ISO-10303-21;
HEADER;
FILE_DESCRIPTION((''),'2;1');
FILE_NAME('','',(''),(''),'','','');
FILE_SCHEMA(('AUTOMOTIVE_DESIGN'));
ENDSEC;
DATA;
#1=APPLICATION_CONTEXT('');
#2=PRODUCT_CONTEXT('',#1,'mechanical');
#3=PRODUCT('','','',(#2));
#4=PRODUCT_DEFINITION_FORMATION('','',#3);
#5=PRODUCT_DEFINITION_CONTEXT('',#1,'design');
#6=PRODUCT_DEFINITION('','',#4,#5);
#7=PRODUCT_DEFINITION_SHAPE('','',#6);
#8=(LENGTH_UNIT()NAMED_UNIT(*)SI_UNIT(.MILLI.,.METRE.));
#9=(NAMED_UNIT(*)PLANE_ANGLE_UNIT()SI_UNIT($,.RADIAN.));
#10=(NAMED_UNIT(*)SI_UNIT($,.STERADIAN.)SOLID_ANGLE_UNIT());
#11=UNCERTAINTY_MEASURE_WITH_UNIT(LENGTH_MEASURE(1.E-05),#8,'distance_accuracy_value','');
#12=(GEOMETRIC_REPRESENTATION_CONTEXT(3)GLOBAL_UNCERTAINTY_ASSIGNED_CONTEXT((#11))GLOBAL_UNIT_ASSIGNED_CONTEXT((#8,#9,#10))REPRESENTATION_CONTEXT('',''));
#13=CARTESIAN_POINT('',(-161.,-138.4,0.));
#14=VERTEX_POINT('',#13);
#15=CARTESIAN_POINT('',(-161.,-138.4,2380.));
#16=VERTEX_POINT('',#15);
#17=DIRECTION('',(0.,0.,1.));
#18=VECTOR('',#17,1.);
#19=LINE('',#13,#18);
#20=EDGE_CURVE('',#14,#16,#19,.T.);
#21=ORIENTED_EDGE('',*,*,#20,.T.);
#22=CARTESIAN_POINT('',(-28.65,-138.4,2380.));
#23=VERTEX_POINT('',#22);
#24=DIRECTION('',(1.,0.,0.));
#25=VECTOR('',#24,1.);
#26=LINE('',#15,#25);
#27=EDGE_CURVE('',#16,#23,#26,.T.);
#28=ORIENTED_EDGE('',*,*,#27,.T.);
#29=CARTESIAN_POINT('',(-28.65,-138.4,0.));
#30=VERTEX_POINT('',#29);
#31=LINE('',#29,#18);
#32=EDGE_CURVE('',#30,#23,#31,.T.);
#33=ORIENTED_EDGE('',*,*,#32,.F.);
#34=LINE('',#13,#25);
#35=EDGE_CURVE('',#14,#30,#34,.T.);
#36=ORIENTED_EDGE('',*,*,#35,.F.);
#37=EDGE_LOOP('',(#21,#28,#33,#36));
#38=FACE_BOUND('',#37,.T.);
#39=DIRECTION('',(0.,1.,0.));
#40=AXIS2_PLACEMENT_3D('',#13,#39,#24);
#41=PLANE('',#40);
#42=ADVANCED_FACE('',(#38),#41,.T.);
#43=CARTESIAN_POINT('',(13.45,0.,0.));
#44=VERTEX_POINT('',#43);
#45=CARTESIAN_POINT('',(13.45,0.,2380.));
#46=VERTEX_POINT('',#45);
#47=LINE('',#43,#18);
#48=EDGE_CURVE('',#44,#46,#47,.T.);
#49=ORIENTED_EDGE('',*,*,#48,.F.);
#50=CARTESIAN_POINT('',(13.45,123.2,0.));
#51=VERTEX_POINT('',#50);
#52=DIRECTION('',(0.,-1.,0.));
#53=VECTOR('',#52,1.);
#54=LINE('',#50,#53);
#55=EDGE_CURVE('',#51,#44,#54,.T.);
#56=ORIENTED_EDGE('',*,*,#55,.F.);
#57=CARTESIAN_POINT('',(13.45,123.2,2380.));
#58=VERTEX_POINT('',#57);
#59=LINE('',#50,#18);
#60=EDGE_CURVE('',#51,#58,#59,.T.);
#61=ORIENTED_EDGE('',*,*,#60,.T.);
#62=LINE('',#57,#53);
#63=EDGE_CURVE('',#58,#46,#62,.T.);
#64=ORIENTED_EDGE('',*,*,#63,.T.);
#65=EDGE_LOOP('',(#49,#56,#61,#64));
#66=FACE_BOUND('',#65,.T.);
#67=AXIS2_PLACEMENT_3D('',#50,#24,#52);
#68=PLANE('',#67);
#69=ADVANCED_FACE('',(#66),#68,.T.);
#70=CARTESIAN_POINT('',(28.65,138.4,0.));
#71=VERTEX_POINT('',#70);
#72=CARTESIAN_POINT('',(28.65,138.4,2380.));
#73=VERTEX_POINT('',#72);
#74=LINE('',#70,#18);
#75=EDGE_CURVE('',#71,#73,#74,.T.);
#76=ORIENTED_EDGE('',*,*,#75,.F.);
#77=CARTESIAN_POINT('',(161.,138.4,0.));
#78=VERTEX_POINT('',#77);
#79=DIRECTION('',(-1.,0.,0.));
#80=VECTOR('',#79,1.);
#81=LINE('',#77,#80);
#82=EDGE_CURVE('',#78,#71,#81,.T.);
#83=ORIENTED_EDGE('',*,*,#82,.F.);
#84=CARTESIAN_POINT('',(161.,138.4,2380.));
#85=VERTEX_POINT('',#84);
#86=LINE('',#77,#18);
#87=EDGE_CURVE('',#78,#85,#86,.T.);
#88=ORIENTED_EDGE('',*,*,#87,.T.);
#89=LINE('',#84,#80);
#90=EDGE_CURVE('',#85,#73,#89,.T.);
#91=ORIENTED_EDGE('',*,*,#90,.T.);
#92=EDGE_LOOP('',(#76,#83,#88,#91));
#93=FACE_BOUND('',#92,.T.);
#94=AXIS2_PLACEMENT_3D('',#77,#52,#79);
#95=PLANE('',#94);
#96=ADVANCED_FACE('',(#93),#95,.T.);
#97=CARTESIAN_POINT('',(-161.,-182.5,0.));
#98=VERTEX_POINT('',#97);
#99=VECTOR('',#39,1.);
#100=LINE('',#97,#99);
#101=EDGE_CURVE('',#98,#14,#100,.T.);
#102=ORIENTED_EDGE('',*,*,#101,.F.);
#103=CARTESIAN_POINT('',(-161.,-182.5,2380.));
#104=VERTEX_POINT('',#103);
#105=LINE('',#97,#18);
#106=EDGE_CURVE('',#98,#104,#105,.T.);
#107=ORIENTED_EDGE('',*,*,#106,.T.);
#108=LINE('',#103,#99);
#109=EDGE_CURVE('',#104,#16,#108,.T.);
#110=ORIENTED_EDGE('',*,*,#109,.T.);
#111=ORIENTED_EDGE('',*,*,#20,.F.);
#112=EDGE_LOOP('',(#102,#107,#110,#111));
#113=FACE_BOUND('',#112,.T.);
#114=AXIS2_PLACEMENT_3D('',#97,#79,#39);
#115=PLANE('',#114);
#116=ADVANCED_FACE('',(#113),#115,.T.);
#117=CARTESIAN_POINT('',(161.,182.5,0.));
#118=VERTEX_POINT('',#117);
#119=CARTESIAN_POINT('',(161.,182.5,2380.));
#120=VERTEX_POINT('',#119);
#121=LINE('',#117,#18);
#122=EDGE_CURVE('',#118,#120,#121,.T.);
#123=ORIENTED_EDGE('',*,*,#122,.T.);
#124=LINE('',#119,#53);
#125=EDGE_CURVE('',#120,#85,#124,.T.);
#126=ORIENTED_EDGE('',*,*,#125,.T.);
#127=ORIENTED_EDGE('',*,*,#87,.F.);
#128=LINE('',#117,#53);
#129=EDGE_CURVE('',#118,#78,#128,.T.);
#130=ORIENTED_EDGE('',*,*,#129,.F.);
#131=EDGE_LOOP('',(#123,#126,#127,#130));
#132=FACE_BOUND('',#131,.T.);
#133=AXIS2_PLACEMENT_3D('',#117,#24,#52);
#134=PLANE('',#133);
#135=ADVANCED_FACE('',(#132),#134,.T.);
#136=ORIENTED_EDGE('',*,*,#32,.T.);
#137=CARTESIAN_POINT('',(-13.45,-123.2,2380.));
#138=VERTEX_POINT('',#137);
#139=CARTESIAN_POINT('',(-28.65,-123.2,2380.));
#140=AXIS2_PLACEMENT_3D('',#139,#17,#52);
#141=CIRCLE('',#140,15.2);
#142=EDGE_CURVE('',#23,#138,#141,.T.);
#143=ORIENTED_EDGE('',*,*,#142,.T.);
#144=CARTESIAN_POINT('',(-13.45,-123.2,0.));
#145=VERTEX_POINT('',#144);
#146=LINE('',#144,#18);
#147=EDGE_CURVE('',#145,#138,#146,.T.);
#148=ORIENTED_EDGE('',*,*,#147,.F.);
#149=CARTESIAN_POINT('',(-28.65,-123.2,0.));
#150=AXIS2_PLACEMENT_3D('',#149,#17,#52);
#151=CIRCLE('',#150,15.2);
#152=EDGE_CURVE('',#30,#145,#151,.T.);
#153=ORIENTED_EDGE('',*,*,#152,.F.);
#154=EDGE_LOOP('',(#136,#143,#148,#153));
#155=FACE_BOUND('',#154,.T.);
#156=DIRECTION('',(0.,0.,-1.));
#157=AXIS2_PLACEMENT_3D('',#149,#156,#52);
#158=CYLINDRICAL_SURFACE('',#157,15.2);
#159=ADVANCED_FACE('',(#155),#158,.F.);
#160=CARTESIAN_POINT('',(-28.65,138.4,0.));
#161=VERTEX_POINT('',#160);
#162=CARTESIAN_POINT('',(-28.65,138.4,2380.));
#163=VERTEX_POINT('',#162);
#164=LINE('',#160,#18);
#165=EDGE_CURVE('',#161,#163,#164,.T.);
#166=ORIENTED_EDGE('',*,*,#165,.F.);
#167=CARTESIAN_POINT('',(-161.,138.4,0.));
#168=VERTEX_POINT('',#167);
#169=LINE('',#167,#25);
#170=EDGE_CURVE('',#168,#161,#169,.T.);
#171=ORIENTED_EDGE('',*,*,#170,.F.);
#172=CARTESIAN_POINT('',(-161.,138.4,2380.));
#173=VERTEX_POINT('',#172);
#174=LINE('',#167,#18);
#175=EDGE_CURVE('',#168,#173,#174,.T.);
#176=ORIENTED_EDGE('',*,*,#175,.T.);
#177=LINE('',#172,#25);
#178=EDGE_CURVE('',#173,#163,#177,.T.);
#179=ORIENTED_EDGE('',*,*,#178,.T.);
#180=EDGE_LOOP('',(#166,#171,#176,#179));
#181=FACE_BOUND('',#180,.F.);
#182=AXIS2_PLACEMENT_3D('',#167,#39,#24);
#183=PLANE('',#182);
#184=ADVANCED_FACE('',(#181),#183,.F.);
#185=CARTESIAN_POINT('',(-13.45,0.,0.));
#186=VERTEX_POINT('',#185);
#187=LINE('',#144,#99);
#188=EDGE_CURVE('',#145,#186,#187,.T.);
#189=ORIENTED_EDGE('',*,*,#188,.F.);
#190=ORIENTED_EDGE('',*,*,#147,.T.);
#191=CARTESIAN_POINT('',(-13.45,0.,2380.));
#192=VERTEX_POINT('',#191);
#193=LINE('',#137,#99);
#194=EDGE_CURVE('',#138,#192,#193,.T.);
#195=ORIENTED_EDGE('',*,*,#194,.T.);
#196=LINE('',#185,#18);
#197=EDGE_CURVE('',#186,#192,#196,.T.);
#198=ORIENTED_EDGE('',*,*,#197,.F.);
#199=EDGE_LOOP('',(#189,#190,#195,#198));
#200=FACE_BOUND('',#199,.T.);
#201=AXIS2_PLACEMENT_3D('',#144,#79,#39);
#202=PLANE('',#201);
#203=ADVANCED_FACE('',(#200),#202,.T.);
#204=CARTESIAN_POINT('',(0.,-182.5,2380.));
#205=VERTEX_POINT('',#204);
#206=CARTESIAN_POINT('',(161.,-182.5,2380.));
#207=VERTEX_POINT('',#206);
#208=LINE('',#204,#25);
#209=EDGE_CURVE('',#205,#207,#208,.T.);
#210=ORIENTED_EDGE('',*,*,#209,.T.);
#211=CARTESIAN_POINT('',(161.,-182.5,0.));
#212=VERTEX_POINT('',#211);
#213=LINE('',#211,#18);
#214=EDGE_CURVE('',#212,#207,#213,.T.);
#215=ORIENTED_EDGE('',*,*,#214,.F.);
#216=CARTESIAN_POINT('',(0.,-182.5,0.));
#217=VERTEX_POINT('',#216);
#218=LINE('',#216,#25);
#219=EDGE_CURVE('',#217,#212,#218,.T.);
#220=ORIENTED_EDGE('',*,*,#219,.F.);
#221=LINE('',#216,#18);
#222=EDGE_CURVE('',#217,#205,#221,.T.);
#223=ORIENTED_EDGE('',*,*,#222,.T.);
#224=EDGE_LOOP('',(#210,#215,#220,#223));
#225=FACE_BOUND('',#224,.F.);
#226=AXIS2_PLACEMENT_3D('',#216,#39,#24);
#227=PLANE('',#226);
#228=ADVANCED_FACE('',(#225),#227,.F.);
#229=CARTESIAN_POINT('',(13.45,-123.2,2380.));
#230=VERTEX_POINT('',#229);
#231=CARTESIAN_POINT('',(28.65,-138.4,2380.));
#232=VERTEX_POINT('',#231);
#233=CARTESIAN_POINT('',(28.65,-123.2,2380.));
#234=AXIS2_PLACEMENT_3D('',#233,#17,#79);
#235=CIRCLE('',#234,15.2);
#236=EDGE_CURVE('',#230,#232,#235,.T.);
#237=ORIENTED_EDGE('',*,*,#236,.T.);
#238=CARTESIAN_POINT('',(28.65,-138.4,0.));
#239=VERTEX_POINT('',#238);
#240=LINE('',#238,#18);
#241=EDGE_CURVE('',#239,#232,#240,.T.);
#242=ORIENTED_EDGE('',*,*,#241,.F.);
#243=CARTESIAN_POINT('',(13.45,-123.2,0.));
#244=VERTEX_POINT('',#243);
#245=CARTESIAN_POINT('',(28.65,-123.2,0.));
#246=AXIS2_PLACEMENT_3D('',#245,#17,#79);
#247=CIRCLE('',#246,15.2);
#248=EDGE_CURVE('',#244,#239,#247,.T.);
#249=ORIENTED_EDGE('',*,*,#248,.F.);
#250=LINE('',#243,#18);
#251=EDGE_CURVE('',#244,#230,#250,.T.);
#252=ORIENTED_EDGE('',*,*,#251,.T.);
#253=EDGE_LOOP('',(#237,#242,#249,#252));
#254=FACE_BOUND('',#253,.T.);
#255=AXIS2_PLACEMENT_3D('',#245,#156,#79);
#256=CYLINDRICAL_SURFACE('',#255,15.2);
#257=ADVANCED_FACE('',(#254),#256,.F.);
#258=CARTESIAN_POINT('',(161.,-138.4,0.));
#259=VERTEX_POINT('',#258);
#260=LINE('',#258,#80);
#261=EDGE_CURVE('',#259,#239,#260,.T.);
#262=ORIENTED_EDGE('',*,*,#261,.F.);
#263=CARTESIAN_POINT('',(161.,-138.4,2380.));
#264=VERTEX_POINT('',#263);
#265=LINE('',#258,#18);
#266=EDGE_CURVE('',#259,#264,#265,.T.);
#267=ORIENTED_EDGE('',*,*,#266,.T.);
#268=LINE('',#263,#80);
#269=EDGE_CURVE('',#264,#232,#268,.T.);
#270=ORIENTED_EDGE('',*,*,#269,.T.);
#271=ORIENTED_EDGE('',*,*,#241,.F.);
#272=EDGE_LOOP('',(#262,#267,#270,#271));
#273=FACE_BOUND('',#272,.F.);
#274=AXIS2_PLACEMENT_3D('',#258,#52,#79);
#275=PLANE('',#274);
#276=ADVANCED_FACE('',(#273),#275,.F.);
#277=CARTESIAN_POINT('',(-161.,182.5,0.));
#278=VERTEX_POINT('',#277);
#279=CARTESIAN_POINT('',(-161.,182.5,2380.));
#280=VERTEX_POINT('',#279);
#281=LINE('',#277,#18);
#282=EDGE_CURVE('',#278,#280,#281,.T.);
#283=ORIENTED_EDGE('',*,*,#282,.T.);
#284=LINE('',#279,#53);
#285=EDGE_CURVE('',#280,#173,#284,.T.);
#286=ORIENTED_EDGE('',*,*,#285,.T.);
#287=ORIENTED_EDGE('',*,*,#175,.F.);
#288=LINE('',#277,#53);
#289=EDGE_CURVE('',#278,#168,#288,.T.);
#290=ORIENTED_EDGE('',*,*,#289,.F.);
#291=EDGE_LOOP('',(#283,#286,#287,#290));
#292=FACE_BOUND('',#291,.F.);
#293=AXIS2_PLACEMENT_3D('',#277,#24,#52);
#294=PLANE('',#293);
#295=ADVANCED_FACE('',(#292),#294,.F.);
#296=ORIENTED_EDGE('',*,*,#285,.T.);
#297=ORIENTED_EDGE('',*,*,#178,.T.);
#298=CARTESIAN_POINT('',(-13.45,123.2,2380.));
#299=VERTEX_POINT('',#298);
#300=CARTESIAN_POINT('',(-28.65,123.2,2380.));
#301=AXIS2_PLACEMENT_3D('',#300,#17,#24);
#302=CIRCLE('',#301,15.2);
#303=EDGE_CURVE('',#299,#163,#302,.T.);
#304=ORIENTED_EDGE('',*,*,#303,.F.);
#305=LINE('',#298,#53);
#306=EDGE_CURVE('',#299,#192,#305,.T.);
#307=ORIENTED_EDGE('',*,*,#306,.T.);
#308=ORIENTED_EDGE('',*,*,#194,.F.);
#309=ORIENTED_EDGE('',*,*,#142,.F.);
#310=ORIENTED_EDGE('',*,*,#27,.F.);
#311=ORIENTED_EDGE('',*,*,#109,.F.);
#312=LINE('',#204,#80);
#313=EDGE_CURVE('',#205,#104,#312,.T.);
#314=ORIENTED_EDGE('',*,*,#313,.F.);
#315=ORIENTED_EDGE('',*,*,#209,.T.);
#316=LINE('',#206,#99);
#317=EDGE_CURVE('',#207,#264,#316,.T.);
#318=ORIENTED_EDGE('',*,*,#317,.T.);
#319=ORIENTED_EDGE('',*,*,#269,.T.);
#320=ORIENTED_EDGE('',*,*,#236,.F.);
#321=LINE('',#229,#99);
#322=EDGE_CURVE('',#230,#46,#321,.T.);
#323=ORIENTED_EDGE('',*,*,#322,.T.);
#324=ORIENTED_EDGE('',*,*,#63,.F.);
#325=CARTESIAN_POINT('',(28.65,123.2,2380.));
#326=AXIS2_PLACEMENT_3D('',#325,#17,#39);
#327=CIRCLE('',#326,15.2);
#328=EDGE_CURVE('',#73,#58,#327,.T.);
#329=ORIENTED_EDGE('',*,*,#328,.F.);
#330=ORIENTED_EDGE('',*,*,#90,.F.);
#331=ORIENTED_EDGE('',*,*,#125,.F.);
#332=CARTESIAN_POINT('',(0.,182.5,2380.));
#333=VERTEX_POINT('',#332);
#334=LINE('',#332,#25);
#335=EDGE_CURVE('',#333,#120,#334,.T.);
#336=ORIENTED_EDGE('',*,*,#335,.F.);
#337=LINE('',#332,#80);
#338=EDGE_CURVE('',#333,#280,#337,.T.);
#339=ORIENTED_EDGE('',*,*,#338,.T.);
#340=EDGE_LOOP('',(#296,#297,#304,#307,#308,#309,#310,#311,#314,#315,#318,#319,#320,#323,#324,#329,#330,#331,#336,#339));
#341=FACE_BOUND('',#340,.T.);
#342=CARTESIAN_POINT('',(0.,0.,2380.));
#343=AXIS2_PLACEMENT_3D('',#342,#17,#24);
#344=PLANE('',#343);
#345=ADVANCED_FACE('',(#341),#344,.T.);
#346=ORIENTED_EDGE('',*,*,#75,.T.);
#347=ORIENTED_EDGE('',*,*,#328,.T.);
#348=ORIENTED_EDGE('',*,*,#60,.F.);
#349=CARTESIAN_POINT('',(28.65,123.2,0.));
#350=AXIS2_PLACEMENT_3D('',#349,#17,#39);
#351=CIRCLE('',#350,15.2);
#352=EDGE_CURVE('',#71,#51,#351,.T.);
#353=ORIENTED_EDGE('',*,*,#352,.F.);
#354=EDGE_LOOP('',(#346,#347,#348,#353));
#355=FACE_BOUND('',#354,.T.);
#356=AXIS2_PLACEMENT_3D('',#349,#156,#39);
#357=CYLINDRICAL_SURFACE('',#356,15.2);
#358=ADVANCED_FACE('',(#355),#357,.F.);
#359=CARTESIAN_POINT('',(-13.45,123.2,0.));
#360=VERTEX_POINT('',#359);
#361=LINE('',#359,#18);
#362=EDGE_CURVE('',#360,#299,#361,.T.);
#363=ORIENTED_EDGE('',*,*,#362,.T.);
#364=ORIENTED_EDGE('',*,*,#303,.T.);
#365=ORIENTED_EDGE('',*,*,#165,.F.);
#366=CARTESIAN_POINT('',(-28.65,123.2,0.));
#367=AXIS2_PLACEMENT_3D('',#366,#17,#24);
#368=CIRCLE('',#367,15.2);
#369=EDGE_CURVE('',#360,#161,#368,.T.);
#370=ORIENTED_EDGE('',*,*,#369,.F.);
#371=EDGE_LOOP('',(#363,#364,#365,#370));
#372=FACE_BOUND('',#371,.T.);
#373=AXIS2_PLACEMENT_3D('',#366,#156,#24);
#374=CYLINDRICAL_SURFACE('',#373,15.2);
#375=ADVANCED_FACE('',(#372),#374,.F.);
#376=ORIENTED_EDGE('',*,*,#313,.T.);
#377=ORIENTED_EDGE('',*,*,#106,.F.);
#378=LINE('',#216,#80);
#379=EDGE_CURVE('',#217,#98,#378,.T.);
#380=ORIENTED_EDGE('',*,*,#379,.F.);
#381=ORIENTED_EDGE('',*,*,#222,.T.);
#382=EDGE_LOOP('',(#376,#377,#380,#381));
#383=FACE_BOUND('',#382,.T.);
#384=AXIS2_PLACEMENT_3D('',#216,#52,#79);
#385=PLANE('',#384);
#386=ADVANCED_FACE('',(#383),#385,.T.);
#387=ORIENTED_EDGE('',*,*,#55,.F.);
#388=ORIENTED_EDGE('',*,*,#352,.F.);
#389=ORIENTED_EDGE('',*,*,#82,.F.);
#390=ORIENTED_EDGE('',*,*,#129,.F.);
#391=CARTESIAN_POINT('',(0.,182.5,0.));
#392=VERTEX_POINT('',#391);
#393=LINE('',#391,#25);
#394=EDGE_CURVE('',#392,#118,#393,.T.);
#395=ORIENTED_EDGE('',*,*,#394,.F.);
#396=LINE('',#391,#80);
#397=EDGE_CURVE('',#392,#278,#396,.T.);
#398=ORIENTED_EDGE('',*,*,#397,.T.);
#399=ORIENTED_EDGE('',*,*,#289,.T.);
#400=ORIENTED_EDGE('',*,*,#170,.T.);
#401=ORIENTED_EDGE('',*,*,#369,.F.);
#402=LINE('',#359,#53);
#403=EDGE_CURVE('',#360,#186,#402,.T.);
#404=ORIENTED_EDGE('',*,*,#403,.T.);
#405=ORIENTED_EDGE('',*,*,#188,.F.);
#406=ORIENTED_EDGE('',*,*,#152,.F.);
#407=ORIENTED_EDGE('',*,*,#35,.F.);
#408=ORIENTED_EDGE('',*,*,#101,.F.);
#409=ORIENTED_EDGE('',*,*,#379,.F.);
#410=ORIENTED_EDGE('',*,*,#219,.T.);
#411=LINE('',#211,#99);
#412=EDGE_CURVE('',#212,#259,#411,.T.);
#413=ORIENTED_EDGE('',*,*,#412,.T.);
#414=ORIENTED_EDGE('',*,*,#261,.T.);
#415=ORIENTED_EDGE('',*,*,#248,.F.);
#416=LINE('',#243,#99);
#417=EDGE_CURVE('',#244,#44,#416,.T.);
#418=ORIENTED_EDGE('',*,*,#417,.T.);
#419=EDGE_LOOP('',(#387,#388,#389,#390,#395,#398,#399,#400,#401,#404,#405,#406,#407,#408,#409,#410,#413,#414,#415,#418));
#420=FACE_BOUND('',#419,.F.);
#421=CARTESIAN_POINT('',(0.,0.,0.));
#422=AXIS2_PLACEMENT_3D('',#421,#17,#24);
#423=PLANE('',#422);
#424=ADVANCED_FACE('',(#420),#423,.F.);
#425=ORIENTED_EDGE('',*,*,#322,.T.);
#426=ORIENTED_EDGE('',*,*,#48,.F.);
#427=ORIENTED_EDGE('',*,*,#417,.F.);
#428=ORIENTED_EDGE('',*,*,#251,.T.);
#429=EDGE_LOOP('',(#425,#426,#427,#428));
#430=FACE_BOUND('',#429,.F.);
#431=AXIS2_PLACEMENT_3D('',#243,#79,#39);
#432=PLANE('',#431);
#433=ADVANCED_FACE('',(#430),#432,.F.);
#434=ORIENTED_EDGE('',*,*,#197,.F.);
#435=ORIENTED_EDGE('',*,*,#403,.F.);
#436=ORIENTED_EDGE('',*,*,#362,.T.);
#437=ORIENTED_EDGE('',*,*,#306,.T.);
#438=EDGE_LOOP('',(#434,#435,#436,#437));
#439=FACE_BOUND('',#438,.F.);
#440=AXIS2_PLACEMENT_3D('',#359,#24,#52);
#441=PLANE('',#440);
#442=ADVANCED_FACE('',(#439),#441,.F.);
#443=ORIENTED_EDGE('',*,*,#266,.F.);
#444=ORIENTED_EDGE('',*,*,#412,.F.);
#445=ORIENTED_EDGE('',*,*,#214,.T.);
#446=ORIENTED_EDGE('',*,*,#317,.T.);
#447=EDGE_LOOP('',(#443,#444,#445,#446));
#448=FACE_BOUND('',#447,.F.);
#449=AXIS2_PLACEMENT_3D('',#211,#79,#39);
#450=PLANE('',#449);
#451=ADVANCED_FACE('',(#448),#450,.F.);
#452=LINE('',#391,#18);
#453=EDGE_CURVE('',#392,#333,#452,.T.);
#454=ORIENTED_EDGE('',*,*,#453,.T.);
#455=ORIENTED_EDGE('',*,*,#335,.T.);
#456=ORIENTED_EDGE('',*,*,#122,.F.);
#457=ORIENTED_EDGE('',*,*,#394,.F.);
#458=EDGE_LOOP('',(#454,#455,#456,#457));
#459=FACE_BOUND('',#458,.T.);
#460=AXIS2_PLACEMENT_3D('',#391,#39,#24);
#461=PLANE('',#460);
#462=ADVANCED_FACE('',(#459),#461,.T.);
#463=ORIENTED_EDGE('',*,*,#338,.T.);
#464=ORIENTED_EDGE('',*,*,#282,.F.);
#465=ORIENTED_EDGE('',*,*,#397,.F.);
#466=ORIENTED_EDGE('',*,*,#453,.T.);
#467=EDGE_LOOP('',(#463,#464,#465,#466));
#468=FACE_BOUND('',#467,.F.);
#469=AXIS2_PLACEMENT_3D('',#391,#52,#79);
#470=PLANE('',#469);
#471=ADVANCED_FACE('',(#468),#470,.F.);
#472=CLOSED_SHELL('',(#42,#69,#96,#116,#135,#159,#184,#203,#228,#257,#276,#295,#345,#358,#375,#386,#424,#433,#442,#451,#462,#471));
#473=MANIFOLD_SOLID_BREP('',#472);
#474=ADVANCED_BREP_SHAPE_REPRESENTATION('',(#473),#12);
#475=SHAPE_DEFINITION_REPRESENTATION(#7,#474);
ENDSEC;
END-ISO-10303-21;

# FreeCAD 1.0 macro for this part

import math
import FreeCAD as App
import Part
import Sketcher

V = App.Vector
Q = App.Units.Quantity

doc = App.newDocument("Part")
body = doc.addObject("PartDesign::Body", "Body")

# Sketch on XY plane
sketch1 = doc.addObject("Sketcher::SketchObject", "Sketch")
body.addObject(sketch1)
sketch1.AttachmentSupport = (doc.XY_Plane, [""])
sketch1.MapMode = "FlatFace"
sketch1.addGeometry([
    Part.LineSegment(V(-161, -138, 0), V(-161, -182, 0)),  # 0
    Part.LineSegment(V(-161, -182, 0), V(161, -182, 0)),  # 1
    Part.LineSegment(V(161, -182, 0), V(161, -138, 0)),  # 2
    Part.LineSegment(V(161, -138, 0), V(29, -138, 0)),  # 3
    Part.ArcOfCircle(Part.Circle(V(29, -123, 0), V(0, 0, 1), 15), math.radians(180), math.radians(270)),  # 4
    Part.LineSegment(V(13, -123, 0), V(13, 123, 0)),  # 5
    Part.ArcOfCircle(Part.Circle(V(29, 123, 0), V(0, 0, 1), 15), math.radians(90), math.radians(180)),  # 6
    Part.LineSegment(V(29, 138, 0), V(161, 138, 0)),  # 7
    Part.LineSegment(V(161, 138, 0), V(161, 182, 0)),  # 8
    Part.LineSegment(V(161, 182, 0), V(-161, 182, 0)),  # 9
    Part.LineSegment(V(-161, 182, 0), V(-161, 138, 0)),  # 10
    Part.LineSegment(V(-161, 138, 0), V(-29, 138, 0)),  # 11
    Part.ArcOfCircle(Part.Circle(V(-29, 123, 0), V(0, 0, 1), 15), math.radians(0), math.radians(90)),  # 12
    Part.LineSegment(V(-13, 123, 0), V(-13, -123, 0)),  # 13
    Part.ArcOfCircle(Part.Circle(V(-29, -123, 0), V(0, 0, 1), 15), math.radians(-90), math.radians(0)),  # 14
    Part.LineSegment(V(-29, -138, 0), V(-161, -138, 0)),  # 15
], False)
sketch1.addConstraint([
    Sketcher.Constraint("Coincident", 0, 2, 1, 1),
    Sketcher.Constraint("Coincident", 1, 2, 2, 1),
    Sketcher.Constraint("Coincident", 2, 2, 3, 1),
    Sketcher.Constraint("Tangent", 3, 2, 4, 2),
    Sketcher.Constraint("Tangent", 4, 1, 5, 1),
    Sketcher.Constraint("Tangent", 5, 2, 6, 2),
    Sketcher.Constraint("Tangent", 6, 1, 7, 1),
    Sketcher.Constraint("Coincident", 7, 2, 8, 1),
    Sketcher.Constraint("Coincident", 8, 2, 9, 1),
    Sketcher.Constraint("Coincident", 9, 2, 10, 1),
    Sketcher.Constraint("Coincident", 10, 2, 11, 1),
    Sketcher.Constraint("Tangent", 11, 2, 12, 2),
    Sketcher.Constraint("Tangent", 12, 1, 13, 1),
    Sketcher.Constraint("Tangent", 13, 2, 14, 2),
    Sketcher.Constraint("Tangent", 14, 1, 15, 1),
    Sketcher.Constraint("Coincident", 15, 2, 0, 1),
    Sketcher.Constraint("Vertical", 0),
    Sketcher.Constraint("Horizontal", 1),
    Sketcher.Constraint("Vertical", 2),
    Sketcher.Constraint("Horizontal", 3),
    Sketcher.Constraint("Vertical", 5),
    Sketcher.Constraint("Horizontal", 7),
    Sketcher.Constraint("Vertical", 8),
    Sketcher.Constraint("Horizontal", 9),
    Sketcher.Constraint("Vertical", 10),
    Sketcher.Constraint("Horizontal", 11),
    Sketcher.Constraint("Vertical", 13),
    Sketcher.Constraint("Horizontal", 15),
    Sketcher.Constraint("Equal", 4, 6),
    Sketcher.Constraint("Equal", 6, 12),
    Sketcher.Constraint("Equal", 12, 14),
    Sketcher.Constraint("Symmetric", 4, 3, 12, 3, -1, 1),
    Sketcher.Constraint("Symmetric", 0, 2, 8, 2, -1, 1),
    Sketcher.Constraint("Symmetric", 7, 2, 10, 2, -2),
    Sketcher.Constraint("Symmetric", 2, 2, 15, 2, -2),
    Sketcher.Constraint("Radius", 4, Q("15.2 mm")),
    Sketcher.Constraint("DistanceY", 0, 2, 0, 1, Q("44.1 mm")),
    Sketcher.Constraint("DistanceX", 0, 2, -1, 1, Q("161 mm")),
    Sketcher.Constraint("DistanceY", 0, 2, -1, 1, Q("182.5 mm")),
    Sketcher.Constraint("DistanceX", -1, 1, 4, 1, Q("13.45 mm")),
])
pad1 = doc.addObject("PartDesign::Pad", "Pad")
body.addObject(pad1)
pad1.Profile = sketch1
pad1.Length = 2380

doc.recompute()
